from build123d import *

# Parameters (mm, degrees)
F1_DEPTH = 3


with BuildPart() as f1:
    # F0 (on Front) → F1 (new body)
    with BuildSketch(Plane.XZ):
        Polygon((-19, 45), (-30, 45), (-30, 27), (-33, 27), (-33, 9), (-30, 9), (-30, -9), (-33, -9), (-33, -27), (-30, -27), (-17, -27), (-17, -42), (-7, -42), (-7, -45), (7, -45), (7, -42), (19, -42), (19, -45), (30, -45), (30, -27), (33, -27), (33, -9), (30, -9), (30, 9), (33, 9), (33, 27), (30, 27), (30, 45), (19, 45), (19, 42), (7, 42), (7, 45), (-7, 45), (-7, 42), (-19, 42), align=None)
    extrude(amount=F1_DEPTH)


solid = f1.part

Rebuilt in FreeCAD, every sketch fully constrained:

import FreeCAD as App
import Part
import Sketcher
Q = App.Units.Quantity

doc = App.newDocument("Part")
body = doc.addObject("PartDesign::Body", "Body")

# Sketch on XZ plane
sketch1 = body.newObject("Sketcher::SketchObject", "Sketch")
sketch1.AttachmentSupport = (doc.getObject("XZ_Plane"), [""])
sketch1.MapMode = "FlatFace"
sketch1.addGeometry(Part.LineSegment(App.Vector(-19, 45, 0), App.Vector(-30, 45, 0)), False)
sketch1.addGeometry(Part.LineSegment(App.Vector(-30, 45, 0), App.Vector(-30, 27, 0)), False)
sketch1.addGeometry(Part.LineSegment(App.Vector(-30, 27, 0), App.Vector(-33, 27, 0)), False)
sketch1.addGeometry(Part.LineSegment(App.Vector(-33, 27, 0), App.Vector(-33, 9, 0)), False)
sketch1.addGeometry(Part.LineSegment(App.Vector(-33, 9, 0), App.Vector(-30, 9, 0)), False)
sketch1.addGeometry(Part.LineSegment(App.Vector(-30, 9, 0), App.Vector(-30, -9, 0)), False)
sketch1.addGeometry(Part.LineSegment(App.Vector(-30, -9, 0), App.Vector(-33, -9, 0)), False)
sketch1.addGeometry(Part.LineSegment(App.Vector(-33, -9, 0), App.Vector(-33, -27, 0)), False)
sketch1.addGeometry(Part.LineSegment(App.Vector(-33, -27, 0), App.Vector(-17, -27, 0)), False)
sketch1.addGeometry(Part.LineSegment(App.Vector(-17, -27, 0), App.Vector(-17, -42, 0)), False)
sketch1.addGeometry(Part.LineSegment(App.Vector(-17, -42, 0), App.Vector(-7, -42, 0)), False)
sketch1.addGeometry(Part.LineSegment(App.Vector(-7, -42, 0), App.Vector(-7, -45, 0)), False)
sketch1.addGeometry(Part.LineSegment(App.Vector(-7, -45, 0), App.Vector(7, -45, 0)), False)
sketch1.addGeometry(Part.LineSegment(App.Vector(7, -45, 0), App.Vector(7, -42, 0)), False)
sketch1.addGeometry(Part.LineSegment(App.Vector(7, -42, 0), App.Vector(19, -42, 0)), False)
sketch1.addGeometry(Part.LineSegment(App.Vector(19, -42, 0), App.Vector(19, -45, 0)), False)
sketch1.addGeometry(Part.LineSegment(App.Vector(19, -45, 0), App.Vector(30, -45, 0)), False)
sketch1.addGeometry(Part.LineSegment(App.Vector(30, -45, 0), App.Vector(30, -27, 0)), False)
sketch1.addGeometry(Part.LineSegment(App.Vector(30, -27, 0), App.Vector(33, -27, 0)), False)
sketch1.addGeometry(Part.LineSegment(App.Vector(33, -27, 0), App.Vector(33, -9, 0)), False)
sketch1.addGeometry(Part.LineSegment(App.Vector(33, -9, 0), App.Vector(30, -9, 0)), False)
sketch1.addGeometry(Part.LineSegment(App.Vector(30, -9, 0), App.Vector(30, 9, 0)), False)
sketch1.addGeometry(Part.LineSegment(App.Vector(30, 9, 0), App.Vector(33, 9, 0)), False)
sketch1.addGeometry(Part.LineSegment(App.Vector(33, 9, 0), App.Vector(33, 27, 0)), False)
sketch1.addGeometry(Part.LineSegment(App.Vector(33, 27, 0), App.Vector(30, 27, 0)), False)
sketch1.addGeometry(Part.LineSegment(App.Vector(30, 27, 0), App.Vector(30, 45, 0)), False)
sketch1.addGeometry(Part.LineSegment(App.Vector(30, 45, 0), App.Vector(19, 45, 0)), False)
sketch1.addGeometry(Part.LineSegment(App.Vector(19, 45, 0), App.Vector(19, 42, 0)), False)
sketch1.addGeometry(Part.LineSegment(App.Vector(19, 42, 0), App.Vector(7, 42, 0)), False)
sketch1.addGeometry(Part.LineSegment(App.Vector(7, 42, 0), App.Vector(7, 45, 0)), False)
sketch1.addGeometry(Part.LineSegment(App.Vector(7, 45, 0), App.Vector(-7, 45, 0)), False)
sketch1.addGeometry(Part.LineSegment(App.Vector(-7, 45, 0), App.Vector(-7, 42, 0)), False)
sketch1.addGeometry(Part.LineSegment(App.Vector(-7, 42, 0), App.Vector(-19, 42, 0)), False)
sketch1.addGeometry(Part.LineSegment(App.Vector(-19, 42, 0), App.Vector(-19, 45, 0)), False)
sketch1.addConstraint(Sketcher.Constraint("Coincident", 0, 2, 1, 1))
sketch1.addConstraint(Sketcher.Constraint("Coincident", 1, 2, 2, 1))
sketch1.addConstraint(Sketcher.Constraint("Coincident", 2, 2, 3, 1))
sketch1.addConstraint(Sketcher.Constraint("Coincident", 3, 2, 4, 1))
sketch1.addConstraint(Sketcher.Constraint("Coincident", 4, 2, 5, 1))
sketch1.addConstraint(Sketcher.Constraint("Coincident", 5, 2, 6, 1))
sketch1.addConstraint(Sketcher.Constraint("Coincident", 6, 2, 7, 1))
sketch1.addConstraint(Sketcher.Constraint("Coincident", 7, 2, 8, 1))
sketch1.addConstraint(Sketcher.Constraint("Coincident", 8, 2, 9, 1))
sketch1.addConstraint(Sketcher.Constraint("Coincident", 9, 2, 10, 1))
sketch1.addConstraint(Sketcher.Constraint("Coincident", 10, 2, 11, 1))
sketch1.addConstraint(Sketcher.Constraint("Coincident", 11, 2, 12, 1))
sketch1.addConstraint(Sketcher.Constraint("Coincident", 12, 2, 13, 1))
sketch1.addConstraint(Sketcher.Constraint("Coincident", 13, 2, 14, 1))
sketch1.addConstraint(Sketcher.Constraint("Coincident", 14, 2, 15, 1))
sketch1.addConstraint(Sketcher.Constraint("Coincident", 15, 2, 16, 1))
sketch1.addConstraint(Sketcher.Constraint("Coincident", 16, 2, 17, 1))
sketch1.addConstraint(Sketcher.Constraint("Coincident", 17, 2, 18, 1))
sketch1.addConstraint(Sketcher.Constraint("Coincident", 18, 2, 19, 1))
sketch1.addConstraint(Sketcher.Constraint("Coincident", 19, 2, 20, 1))
sketch1.addConstraint(Sketcher.Constraint("Coincident", 20, 2, 21, 1))
sketch1.addConstraint(Sketcher.Constraint("Coincident", 21, 2, 22, 1))
sketch1.addConstraint(Sketcher.Constraint("Coincident", 22, 2, 23, 1))
sketch1.addConstraint(Sketcher.Constraint("Coincident", 23, 2, 24, 1))
sketch1.addConstraint(Sketcher.Constraint("Coincident", 24, 2, 25, 1))
sketch1.addConstraint(Sketcher.Constraint("Coincident", 25, 2, 26, 1))
sketch1.addConstraint(Sketcher.Constraint("Coincident", 26, 2, 27, 1))
sketch1.addConstraint(Sketcher.Constraint("Coincident", 27, 2, 28, 1))
sketch1.addConstraint(Sketcher.Constraint("Coincident", 28, 2, 29, 1))
sketch1.addConstraint(Sketcher.Constraint("Coincident", 29, 2, 30, 1))
sketch1.addConstraint(Sketcher.Constraint("Coincident", 30, 2, 31, 1))
sketch1.addConstraint(Sketcher.Constraint("Coincident", 31, 2, 32, 1))
sketch1.addConstraint(Sketcher.Constraint("Coincident", 32, 2, 33, 1))
sketch1.addConstraint(Sketcher.Constraint("Coincident", 33, 2, 0, 1))
sketch1.addConstraint(Sketcher.Constraint("Horizontal", 0))
sketch1.addConstraint(Sketcher.Constraint("Vertical", 1))
sketch1.addConstraint(Sketcher.Constraint("Horizontal", 2))
sketch1.addConstraint(Sketcher.Constraint("Vertical", 3))
sketch1.addConstraint(Sketcher.Constraint("Horizontal", 4))
sketch1.addConstraint(Sketcher.Constraint("Vertical", 5))
sketch1.addConstraint(Sketcher.Constraint("Horizontal", 6))
sketch1.addConstraint(Sketcher.Constraint("Vertical", 7))
sketch1.addConstraint(Sketcher.Constraint("Horizontal", 8))
sketch1.addConstraint(Sketcher.Constraint("Vertical", 9))
sketch1.addConstraint(Sketcher.Constraint("Horizontal", 10))
sketch1.addConstraint(Sketcher.Constraint("Vertical", 11))
sketch1.addConstraint(Sketcher.Constraint("Horizontal", 12))
sketch1.addConstraint(Sketcher.Constraint("Vertical", 13))
sketch1.addConstraint(Sketcher.Constraint("Horizontal", 14))
sketch1.addConstraint(Sketcher.Constraint("Vertical", 15))
sketch1.addConstraint(Sketcher.Constraint("Horizontal", 16))
sketch1.addConstraint(Sketcher.Constraint("Vertical", 17))
sketch1.addConstraint(Sketcher.Constraint("Horizontal", 18))
sketch1.addConstraint(Sketcher.Constraint("Vertical", 19))
sketch1.addConstraint(Sketcher.Constraint("Horizontal", 20))
sketch1.addConstraint(Sketcher.Constraint("Vertical", 21))
sketch1.addConstraint(Sketcher.Constraint("Horizontal", 22))
sketch1.addConstraint(Sketcher.Constraint("Vertical", 23))
sketch1.addConstraint(Sketcher.Constraint("Horizontal", 24))
sketch1.addConstraint(Sketcher.Constraint("Vertical", 25))
sketch1.addConstraint(Sketcher.Constraint("Horizontal", 26))
sketch1.addConstraint(Sketcher.Constraint("Vertical", 27))
sketch1.addConstraint(Sketcher.Constraint("Horizontal", 28))
sketch1.addConstraint(Sketcher.Constraint("Vertical", 29))
sketch1.addConstraint(Sketcher.Constraint("Horizontal", 30))
sketch1.addConstraint(Sketcher.Constraint("Vertical", 31))
sketch1.addConstraint(Sketcher.Constraint("Horizontal", 32))
sketch1.addConstraint(Sketcher.Constraint("Vertical", 33))
sketch1.addConstraint(Sketcher.Constraint("Symmetric", 0, 2, 16, 2, -1, 1))
sketch1.addConstraint(Sketcher.Constraint("Symmetric", 2, 2, 18, 2, -1, 1))
sketch1.addConstraint(Sketcher.Constraint("Symmetric", 4, 2, 20, 2, -1, 1))
sketch1.addConstraint(Sketcher.Constraint("Symmetric", 6, 2, 22, 2, -1, 1))
sketch1.addConstraint(Sketcher.Constraint("Symmetric", 10, 2, 28, 2, -1, 1))
sketch1.addConstraint(Sketcher.Constraint("Symmetric", 12, 2, 30, 2, -1, 1))
sketch1.addConstraint(Sketcher.Constraint("Symmetric", 14, 2, 32, 2, -1, 1))
sketch1.addConstraint(Sketcher.Constraint("Symmetric", 10, 2, 13, 2, -2))
sketch1.addConstraint(Sketcher.Constraint("Symmetric", 7, 2, 18, 2, -2))
sketch1.addConstraint(Sketcher.Constraint("Symmetric", 1, 2, 24, 2, -2))
sketch1.addConstraint(Sketcher.Constraint("Symmetric", 26, 2, 33, 2, -2))
sketch1.addConstraint(Sketcher.Constraint("Horizontal", 12, 2, 15, 2))
sketch1.addConstraint(Sketcher.Constraint("Horizontal", 6, 2, 19, 2))
sketch1.addConstraint(Sketcher.Constraint("Vertical", 1, 2, 4, 2))
sketch1.addConstraint(Sketcher.Constraint("Equal", 1, 3))
sketch1.addConstraint(Sketcher.Constraint("Equal", 3, 5))
sketch1.addConstraint(Sketcher.Constraint("Equal", 24, 11))
sketch1.addConstraint(Sketcher.Constraint("DistanceX", 0, 2, 0, 1, Q("11 mm")))
sketch1.addConstraint(Sketcher.Constraint("DistanceX", 2, 2, 2, 1, Q("3 mm")))
sketch1.addConstraint(Sketcher.Constraint("DistanceX", 8, 1, 8, 2, Q("16 mm")))
sketch1.addConstraint(Sketcher.Constraint("DistanceX", 10, 1, 10, 2, Q("10 mm")))
sketch1.addConstraint(Sketcher.Constraint("DistanceX", 12, 1, 12, 2, Q("14 mm")))
sketch1.addConstraint(Sketcher.Constraint("DistanceY", 1, 2, 1, 1, Q("18 mm")))
pad1 = body.newObject("PartDesign::Pad", "Pad")
pad1.Profile = sketch1
pad1.Length = 3

doc.recompute()
